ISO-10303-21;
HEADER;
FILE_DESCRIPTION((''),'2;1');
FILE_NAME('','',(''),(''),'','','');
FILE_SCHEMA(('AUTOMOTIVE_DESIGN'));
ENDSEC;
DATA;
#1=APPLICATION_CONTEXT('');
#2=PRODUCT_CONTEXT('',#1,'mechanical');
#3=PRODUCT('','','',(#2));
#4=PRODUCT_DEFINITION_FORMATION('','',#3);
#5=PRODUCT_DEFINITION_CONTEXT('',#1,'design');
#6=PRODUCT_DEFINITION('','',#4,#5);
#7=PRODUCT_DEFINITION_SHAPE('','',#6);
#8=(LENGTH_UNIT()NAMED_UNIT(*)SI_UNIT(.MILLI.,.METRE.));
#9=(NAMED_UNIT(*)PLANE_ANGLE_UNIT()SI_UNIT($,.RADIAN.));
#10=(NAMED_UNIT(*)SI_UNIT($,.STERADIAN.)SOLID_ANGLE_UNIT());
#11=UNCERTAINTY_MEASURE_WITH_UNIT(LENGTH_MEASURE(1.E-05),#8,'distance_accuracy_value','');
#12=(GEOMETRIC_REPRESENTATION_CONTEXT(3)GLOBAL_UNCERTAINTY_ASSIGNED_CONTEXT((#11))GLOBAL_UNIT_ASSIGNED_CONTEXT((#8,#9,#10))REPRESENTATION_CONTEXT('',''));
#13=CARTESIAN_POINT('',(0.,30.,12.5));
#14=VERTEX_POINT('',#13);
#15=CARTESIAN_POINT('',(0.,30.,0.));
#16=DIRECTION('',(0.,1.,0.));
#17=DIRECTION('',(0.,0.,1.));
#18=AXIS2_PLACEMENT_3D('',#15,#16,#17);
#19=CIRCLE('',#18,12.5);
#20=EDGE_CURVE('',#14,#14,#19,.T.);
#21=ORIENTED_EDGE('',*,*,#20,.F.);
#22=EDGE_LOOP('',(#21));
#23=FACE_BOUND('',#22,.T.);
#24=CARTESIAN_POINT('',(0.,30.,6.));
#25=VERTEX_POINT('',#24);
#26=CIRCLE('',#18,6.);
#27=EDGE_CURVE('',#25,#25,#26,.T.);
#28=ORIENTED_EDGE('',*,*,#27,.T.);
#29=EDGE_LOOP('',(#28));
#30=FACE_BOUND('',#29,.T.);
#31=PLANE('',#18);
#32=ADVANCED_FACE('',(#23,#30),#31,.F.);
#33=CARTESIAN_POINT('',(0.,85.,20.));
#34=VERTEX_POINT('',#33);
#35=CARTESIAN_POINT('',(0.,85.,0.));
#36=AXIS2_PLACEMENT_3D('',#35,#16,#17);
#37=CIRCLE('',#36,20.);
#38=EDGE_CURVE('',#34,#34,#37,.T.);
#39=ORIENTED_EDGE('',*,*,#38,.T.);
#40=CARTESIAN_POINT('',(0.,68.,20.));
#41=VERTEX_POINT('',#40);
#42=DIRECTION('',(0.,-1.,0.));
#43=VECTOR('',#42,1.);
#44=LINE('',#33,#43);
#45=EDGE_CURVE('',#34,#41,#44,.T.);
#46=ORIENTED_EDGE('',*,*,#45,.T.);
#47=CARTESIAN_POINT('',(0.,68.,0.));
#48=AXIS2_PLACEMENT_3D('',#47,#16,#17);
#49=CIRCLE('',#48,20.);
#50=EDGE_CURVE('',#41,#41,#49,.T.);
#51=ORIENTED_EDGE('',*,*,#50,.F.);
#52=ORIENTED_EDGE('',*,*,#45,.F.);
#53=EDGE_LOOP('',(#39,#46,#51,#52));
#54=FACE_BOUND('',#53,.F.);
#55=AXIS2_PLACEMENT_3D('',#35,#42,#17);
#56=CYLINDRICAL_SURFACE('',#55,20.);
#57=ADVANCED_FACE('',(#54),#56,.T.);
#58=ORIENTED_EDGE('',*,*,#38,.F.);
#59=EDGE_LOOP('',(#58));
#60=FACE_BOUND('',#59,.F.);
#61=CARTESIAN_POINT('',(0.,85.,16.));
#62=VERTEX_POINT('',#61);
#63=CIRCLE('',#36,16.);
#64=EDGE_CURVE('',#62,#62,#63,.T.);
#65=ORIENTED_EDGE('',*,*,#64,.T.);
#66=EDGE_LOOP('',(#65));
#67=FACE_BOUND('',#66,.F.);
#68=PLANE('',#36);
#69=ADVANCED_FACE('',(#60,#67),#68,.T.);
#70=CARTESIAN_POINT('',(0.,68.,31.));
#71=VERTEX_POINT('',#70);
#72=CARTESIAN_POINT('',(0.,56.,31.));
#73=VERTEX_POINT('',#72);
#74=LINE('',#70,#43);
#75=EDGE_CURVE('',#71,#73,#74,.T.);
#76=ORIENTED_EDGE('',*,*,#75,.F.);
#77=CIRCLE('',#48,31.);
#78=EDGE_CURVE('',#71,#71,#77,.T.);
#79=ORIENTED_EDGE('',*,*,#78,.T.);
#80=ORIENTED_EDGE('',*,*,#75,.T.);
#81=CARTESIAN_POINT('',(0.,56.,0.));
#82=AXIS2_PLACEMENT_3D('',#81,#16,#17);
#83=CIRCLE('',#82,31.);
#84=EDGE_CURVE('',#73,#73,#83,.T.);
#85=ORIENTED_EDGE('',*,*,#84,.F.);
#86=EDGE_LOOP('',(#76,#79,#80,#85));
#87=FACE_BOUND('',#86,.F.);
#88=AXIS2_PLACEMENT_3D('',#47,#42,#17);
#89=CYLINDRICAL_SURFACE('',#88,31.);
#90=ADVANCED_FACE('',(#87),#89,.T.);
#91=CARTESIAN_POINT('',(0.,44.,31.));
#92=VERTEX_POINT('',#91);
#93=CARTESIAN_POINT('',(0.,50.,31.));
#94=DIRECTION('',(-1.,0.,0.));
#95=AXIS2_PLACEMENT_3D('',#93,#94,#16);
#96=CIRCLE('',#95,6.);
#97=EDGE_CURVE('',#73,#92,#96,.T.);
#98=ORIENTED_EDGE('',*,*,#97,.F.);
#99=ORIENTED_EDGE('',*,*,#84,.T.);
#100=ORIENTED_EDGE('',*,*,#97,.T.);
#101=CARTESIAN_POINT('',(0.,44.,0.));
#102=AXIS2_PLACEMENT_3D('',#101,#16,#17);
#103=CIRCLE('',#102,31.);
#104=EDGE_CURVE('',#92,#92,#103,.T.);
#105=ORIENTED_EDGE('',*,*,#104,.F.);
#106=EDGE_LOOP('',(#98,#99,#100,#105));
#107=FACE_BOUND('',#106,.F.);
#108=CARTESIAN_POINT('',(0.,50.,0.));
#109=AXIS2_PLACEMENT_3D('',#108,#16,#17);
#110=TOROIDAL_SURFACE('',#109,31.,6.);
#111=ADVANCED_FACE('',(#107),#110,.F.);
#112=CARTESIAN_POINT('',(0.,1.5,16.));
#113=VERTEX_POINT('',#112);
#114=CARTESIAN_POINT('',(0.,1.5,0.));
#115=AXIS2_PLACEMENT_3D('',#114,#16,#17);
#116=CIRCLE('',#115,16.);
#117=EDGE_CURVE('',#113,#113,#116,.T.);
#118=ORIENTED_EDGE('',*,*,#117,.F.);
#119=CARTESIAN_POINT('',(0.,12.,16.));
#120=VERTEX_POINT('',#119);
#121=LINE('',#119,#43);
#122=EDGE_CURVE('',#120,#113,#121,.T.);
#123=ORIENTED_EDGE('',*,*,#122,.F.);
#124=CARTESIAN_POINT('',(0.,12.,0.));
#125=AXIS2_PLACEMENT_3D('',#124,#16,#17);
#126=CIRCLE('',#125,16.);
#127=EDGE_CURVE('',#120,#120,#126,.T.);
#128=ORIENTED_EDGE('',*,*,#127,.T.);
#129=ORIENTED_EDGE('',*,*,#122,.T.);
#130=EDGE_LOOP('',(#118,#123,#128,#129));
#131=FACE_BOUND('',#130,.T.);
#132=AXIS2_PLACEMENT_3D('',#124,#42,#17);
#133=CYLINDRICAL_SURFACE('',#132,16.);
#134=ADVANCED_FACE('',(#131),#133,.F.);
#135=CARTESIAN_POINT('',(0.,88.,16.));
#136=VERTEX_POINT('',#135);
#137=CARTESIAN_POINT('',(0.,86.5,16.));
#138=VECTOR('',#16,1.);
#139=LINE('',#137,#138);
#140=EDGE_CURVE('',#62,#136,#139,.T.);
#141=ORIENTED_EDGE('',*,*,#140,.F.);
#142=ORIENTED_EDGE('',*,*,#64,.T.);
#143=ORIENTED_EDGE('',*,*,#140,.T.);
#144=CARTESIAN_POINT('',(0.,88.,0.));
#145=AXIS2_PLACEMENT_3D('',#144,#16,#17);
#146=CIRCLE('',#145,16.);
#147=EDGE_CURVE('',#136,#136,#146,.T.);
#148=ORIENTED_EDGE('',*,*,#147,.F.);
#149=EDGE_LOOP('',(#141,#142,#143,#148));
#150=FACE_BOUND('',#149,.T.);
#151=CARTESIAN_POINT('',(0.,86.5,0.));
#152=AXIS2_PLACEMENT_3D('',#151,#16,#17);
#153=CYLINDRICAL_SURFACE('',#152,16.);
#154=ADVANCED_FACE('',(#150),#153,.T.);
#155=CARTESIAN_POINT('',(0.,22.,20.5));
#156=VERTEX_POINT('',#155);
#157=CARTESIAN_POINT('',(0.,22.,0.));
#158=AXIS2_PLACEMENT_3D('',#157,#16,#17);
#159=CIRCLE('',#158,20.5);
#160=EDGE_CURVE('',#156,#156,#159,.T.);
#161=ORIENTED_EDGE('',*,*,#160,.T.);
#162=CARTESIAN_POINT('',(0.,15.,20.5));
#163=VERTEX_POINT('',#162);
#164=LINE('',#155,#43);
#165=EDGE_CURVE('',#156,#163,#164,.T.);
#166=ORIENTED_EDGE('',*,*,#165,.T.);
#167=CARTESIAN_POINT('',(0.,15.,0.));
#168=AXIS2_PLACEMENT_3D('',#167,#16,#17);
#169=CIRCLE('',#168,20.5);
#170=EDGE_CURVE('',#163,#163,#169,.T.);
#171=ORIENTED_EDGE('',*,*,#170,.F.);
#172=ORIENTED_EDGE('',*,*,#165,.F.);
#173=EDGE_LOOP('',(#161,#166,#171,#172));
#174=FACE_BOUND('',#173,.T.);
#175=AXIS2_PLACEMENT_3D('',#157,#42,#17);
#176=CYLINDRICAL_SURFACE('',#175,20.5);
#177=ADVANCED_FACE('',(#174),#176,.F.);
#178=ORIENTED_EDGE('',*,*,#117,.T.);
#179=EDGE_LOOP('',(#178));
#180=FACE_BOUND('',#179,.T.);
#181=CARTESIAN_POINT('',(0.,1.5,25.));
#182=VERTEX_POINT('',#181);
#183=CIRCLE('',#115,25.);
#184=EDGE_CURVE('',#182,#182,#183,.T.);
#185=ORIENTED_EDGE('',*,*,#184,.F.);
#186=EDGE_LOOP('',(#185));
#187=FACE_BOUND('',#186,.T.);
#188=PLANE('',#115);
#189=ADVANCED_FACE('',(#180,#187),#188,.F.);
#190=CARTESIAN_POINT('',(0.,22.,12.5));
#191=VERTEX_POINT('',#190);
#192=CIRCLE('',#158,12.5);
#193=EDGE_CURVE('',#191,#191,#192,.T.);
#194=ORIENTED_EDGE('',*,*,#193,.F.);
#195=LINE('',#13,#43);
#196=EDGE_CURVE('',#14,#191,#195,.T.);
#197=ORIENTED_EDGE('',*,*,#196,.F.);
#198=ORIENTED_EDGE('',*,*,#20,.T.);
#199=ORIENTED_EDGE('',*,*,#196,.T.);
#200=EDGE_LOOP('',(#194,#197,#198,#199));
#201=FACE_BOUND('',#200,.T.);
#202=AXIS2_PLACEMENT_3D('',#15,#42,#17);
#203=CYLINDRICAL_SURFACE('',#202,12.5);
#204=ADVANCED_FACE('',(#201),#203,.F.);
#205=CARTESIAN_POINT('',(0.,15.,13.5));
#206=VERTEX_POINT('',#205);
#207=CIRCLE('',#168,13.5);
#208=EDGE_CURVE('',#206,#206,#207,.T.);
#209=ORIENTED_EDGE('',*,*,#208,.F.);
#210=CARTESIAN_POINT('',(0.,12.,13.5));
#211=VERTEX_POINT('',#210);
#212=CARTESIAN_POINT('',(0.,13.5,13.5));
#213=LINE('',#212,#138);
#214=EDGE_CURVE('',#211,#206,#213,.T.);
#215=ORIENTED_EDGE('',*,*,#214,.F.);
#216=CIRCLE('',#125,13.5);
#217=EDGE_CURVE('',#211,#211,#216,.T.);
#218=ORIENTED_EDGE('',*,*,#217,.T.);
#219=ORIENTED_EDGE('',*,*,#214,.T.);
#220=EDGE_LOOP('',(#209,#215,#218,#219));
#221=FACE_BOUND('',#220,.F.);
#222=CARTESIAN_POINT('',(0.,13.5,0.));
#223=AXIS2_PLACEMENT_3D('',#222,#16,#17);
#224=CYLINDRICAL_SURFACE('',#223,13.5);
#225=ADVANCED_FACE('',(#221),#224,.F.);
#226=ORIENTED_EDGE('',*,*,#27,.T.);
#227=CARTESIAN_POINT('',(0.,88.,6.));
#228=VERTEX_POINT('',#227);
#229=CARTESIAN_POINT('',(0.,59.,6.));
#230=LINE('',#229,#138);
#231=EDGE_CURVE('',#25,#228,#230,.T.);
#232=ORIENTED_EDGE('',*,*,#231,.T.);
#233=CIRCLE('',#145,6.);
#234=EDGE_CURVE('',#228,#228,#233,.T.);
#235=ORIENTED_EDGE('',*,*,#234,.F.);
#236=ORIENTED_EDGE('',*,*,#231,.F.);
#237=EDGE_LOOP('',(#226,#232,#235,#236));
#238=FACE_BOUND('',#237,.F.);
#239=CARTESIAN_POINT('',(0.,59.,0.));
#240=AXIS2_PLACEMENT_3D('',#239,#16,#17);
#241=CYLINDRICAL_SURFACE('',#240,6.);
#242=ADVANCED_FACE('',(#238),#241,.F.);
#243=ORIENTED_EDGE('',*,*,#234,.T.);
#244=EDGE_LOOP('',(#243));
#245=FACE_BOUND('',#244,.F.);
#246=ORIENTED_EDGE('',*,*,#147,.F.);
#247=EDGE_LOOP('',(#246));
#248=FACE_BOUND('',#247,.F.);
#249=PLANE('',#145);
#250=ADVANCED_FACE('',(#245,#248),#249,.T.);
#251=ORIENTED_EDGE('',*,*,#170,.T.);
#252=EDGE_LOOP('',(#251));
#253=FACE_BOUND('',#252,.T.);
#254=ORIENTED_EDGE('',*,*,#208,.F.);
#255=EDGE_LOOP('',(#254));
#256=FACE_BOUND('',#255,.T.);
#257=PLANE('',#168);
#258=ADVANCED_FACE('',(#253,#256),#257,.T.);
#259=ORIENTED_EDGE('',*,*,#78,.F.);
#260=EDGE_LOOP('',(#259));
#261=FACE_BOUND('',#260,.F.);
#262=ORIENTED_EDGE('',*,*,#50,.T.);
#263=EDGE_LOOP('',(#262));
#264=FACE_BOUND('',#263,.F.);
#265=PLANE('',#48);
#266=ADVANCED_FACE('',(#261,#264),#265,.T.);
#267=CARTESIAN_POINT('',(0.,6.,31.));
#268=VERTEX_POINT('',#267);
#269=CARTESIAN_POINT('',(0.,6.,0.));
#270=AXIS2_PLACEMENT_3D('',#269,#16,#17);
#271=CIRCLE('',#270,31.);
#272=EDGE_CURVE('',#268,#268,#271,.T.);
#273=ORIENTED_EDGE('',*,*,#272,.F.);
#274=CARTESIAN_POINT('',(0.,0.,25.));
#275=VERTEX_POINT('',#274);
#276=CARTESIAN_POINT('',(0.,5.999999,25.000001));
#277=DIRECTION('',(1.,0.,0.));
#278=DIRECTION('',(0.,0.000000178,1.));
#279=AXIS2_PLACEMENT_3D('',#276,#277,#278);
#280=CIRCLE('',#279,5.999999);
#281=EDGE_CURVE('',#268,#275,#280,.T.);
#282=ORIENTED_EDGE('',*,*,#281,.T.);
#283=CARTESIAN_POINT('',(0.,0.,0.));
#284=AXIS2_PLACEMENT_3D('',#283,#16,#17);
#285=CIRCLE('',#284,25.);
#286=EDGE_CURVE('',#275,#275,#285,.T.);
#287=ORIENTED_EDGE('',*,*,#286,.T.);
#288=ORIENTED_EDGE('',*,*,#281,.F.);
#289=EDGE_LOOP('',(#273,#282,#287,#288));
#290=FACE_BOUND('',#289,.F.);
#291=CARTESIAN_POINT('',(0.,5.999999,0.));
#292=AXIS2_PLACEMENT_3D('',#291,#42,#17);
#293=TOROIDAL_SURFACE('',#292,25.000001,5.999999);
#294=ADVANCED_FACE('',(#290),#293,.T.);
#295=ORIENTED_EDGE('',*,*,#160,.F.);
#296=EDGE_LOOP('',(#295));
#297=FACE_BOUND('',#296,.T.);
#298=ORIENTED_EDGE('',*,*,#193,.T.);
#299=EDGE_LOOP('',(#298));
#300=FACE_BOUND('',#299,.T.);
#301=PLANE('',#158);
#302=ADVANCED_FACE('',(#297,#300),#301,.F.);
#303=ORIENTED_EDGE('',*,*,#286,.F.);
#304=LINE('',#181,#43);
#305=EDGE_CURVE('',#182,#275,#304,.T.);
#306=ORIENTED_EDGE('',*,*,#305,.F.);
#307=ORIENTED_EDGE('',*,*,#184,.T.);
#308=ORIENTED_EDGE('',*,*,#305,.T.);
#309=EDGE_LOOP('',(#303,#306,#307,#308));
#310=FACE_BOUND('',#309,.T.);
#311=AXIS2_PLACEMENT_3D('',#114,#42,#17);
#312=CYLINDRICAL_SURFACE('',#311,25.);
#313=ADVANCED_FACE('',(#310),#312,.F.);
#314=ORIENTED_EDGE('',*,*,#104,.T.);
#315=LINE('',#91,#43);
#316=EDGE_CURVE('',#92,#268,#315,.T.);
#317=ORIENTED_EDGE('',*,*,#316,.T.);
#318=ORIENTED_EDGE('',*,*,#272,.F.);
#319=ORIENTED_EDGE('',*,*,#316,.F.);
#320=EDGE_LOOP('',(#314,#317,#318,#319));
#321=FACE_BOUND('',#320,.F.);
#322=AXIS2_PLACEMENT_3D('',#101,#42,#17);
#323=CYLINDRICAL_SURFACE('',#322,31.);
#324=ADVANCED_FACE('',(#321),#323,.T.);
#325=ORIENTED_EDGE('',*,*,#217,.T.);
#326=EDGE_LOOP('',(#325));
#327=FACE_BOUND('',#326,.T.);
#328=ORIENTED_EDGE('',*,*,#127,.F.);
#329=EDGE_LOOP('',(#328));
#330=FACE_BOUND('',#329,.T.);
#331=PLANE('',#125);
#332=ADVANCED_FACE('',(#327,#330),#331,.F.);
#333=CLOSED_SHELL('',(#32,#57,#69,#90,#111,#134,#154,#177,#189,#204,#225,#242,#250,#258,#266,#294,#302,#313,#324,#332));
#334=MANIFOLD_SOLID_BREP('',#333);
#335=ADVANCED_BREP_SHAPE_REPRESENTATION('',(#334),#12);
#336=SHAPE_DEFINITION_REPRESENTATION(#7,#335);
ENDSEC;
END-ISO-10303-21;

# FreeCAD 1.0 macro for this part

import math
import FreeCAD as App
import Part
import Sketcher

V = App.Vector
Q = App.Units.Quantity


def add_polygon(sketch, points):
    """Adds a closed chain of lines whose ends are joined by coincident constraints."""
    first, n = sketch.GeometryCount, len(points)
    for a, b in zip(points, points[1:] + points[:1]):
        sketch.addGeometry(Part.LineSegment(App.Vector(*a, 0), App.Vector(*b, 0)), False)
    for i in range(n):
        sketch.addConstraint(Sketcher.Constraint("Coincident", first + i, 2, first + (i + 1) % n, 1))

doc = App.newDocument("Part")
body = doc.addObject("PartDesign::Body", "Body")

# Sketch on YZ plane
sketch1 = body.newObject("Sketcher::SketchObject", "Sketch")
sketch1.AttachmentSupport = (doc.getObject("YZ_Plane"), [""])
sketch1.MapMode = "FlatFace"
sketch1.addGeometry([
    Part.LineSegment(V(0, 25, 0), V(0, 0, 0)),  # 0
    Part.LineSegment(V(0, 0, 0), V(88, 0, 0)),  # 1
    Part.LineSegment(V(88, 0, 0), V(88, 16, 0)),  # 2
    Part.LineSegment(V(88, 16, 0), V(85, 16, 0)),  # 3
    Part.LineSegment(V(85, 16, 0), V(85, 20, 0)),  # 4
    Part.LineSegment(V(85, 20, 0), V(68, 20, 0)),  # 5
    Part.LineSegment(V(68, 20, 0), V(68, 31, 0)),  # 6
    Part.LineSegment(V(68, 31, 0), V(56, 31, 0)),  # 7
    Part.ArcOfCircle(Part.Circle(V(50, 31, 0), V(0, 0, 1), 6), math.radians(180), math.radians(360)),  # 8
    Part.LineSegment(V(44, 31, 0), V(6, 31, 0)),  # 9
    Part.ArcOfCircle(Part.Circle(V(6, 25, 0), V(0, 0, 1), 6), math.radians(90), math.radians(180)),  # 10
], False)
sketch1.addConstraint([
    Sketcher.Constraint("Coincident", 0, 2, 1, 1),
    Sketcher.Constraint("Coincident", 1, 2, 2, 1),
    Sketcher.Constraint("Coincident", 2, 2, 3, 1),
    Sketcher.Constraint("Coincident", 3, 2, 4, 1),
    Sketcher.Constraint("Coincident", 4, 2, 5, 1),
    Sketcher.Constraint("Coincident", 5, 2, 6, 1),
    Sketcher.Constraint("Coincident", 6, 2, 7, 1),
    Sketcher.Constraint("Coincident", 7, 2, 8, 2),
    Sketcher.Constraint("Coincident", 8, 1, 9, 1),
    Sketcher.Constraint("Tangent", 9, 2, 10, 1),
    Sketcher.Constraint("Tangent", 10, 2, 0, 1),
    Sketcher.Constraint("Vertical", 0),
    Sketcher.Constraint("Horizontal", 1),
    Sketcher.Constraint("Vertical", 2),
    Sketcher.Constraint("Horizontal", 3),
    Sketcher.Constraint("Vertical", 4),
    Sketcher.Constraint("Horizontal", 5),
    Sketcher.Constraint("Vertical", 6),
    Sketcher.Constraint("Horizontal", 7),
    Sketcher.Constraint("Horizontal", 9),
    Sketcher.Constraint("Coincident", 0, 2, -1, 1),
    Sketcher.Constraint("Equal", 8, 10),
    Sketcher.Constraint("Horizontal", 8, 3, 6, 2),
    Sketcher.Constraint("Horizontal", 7, 2, 8, 1),
    Sketcher.Constraint("Radius", 8, Q("6 mm")),
    Sketcher.Constraint("DistanceX", 1, 1, 1, 2, Q("88 mm")),
    Sketcher.Constraint("DistanceX", 3, 2, 3, 1, Q("3 mm")),
    Sketcher.Constraint("DistanceX", 5, 2, 5, 1, Q("17 mm")),
    Sketcher.Constraint("DistanceX", 7, 2, 7, 1, Q("12 mm")),
    Sketcher.Constraint("DistanceY", 0, 2, 0, 1, Q("25 mm")),
    Sketcher.Constraint("DistanceY", 2, 1, 2, 2, Q("16 mm")),
    Sketcher.Constraint("DistanceY", 4, 1, 4, 2, Q("4 mm")),
])
revolution = body.newObject("PartDesign::Revolution", "Revolution")
revolution.Profile = sketch1
revolution.ReferenceAxis = (sketch1, ["H_Axis"])
revolution.Angle = 360

# Sketch on YZ plane
sketch2 = body.newObject("Sketcher::SketchObject", "Sketch001")
sketch2.AttachmentSupport = (doc.getObject("YZ_Plane"), [""])
sketch2.MapMode = "FlatFace"
add_polygon(sketch2, [(0, 25), (0, 0), (88, 0), (88, 6), (30, 6), (30, 12.5), (22, 12.5), (22, 20.5), (15, 20.5), (15, 13.5), (12, 13.5), (12, 16), (1.5, 16), (1.5, 25)])  # lines 0-13
sketch2.addConstraint([
    Sketcher.Constraint("Vertical", 0),
    Sketcher.Constraint("Horizontal", 1),
    Sketcher.Constraint("Vertical", 2),
    Sketcher.Constraint("Horizontal", 3),
    Sketcher.Constraint("Vertical", 4),
    Sketcher.Constraint("Horizontal", 5),
    Sketcher.Constraint("Vertical", 6),
    Sketcher.Constraint("Horizontal", 7),
    Sketcher.Constraint("Vertical", 8),
    Sketcher.Constraint("Horizontal", 9),
    Sketcher.Constraint("Vertical", 10),
    Sketcher.Constraint("Horizontal", 11),
    Sketcher.Constraint("Vertical", 12),
    Sketcher.Constraint("Horizontal", 13),
    Sketcher.Constraint("Coincident", 0, 2, -1, 1),
    Sketcher.Constraint("Equal", 5, 6),
    Sketcher.Constraint("Equal", 7, 8),
    Sketcher.Constraint("DistanceX", 1, 1, 1, 2, Q("88 mm")),
    Sketcher.Constraint("DistanceX", 3, 2, 3, 1, Q("58 mm")),
    Sketcher.Constraint("DistanceX", 5, 2, 5, 1, Q("8 mm")),
    Sketcher.Constraint("DistanceX", 7, 2, 7, 1, Q("7 mm")),
    Sketcher.Constraint("DistanceX", 9, 2, 9, 1, Q("3 mm")),
    Sketcher.Constraint("DistanceY", 0, 2, 0, 1, Q("25 mm")),
    Sketcher.Constraint("DistanceY", 2, 1, 2, 2, Q("6 mm")),
    Sketcher.Constraint("DistanceY", 12, 1, 12, 2, Q("9 mm")),
    Sketcher.Constraint("DistanceX", 11, 2, 11, 1, Q("10.5 mm")),
    Sketcher.Constraint("DistanceY", 4, 1, 4, 2, Q("6.5 mm")),
])
groove = body.newObject("PartDesign::Groove", "Groove")
groove.Profile = sketch2
groove.ReferenceAxis = (sketch2, ["H_Axis"])
groove.Angle = 360

doc.recompute()
